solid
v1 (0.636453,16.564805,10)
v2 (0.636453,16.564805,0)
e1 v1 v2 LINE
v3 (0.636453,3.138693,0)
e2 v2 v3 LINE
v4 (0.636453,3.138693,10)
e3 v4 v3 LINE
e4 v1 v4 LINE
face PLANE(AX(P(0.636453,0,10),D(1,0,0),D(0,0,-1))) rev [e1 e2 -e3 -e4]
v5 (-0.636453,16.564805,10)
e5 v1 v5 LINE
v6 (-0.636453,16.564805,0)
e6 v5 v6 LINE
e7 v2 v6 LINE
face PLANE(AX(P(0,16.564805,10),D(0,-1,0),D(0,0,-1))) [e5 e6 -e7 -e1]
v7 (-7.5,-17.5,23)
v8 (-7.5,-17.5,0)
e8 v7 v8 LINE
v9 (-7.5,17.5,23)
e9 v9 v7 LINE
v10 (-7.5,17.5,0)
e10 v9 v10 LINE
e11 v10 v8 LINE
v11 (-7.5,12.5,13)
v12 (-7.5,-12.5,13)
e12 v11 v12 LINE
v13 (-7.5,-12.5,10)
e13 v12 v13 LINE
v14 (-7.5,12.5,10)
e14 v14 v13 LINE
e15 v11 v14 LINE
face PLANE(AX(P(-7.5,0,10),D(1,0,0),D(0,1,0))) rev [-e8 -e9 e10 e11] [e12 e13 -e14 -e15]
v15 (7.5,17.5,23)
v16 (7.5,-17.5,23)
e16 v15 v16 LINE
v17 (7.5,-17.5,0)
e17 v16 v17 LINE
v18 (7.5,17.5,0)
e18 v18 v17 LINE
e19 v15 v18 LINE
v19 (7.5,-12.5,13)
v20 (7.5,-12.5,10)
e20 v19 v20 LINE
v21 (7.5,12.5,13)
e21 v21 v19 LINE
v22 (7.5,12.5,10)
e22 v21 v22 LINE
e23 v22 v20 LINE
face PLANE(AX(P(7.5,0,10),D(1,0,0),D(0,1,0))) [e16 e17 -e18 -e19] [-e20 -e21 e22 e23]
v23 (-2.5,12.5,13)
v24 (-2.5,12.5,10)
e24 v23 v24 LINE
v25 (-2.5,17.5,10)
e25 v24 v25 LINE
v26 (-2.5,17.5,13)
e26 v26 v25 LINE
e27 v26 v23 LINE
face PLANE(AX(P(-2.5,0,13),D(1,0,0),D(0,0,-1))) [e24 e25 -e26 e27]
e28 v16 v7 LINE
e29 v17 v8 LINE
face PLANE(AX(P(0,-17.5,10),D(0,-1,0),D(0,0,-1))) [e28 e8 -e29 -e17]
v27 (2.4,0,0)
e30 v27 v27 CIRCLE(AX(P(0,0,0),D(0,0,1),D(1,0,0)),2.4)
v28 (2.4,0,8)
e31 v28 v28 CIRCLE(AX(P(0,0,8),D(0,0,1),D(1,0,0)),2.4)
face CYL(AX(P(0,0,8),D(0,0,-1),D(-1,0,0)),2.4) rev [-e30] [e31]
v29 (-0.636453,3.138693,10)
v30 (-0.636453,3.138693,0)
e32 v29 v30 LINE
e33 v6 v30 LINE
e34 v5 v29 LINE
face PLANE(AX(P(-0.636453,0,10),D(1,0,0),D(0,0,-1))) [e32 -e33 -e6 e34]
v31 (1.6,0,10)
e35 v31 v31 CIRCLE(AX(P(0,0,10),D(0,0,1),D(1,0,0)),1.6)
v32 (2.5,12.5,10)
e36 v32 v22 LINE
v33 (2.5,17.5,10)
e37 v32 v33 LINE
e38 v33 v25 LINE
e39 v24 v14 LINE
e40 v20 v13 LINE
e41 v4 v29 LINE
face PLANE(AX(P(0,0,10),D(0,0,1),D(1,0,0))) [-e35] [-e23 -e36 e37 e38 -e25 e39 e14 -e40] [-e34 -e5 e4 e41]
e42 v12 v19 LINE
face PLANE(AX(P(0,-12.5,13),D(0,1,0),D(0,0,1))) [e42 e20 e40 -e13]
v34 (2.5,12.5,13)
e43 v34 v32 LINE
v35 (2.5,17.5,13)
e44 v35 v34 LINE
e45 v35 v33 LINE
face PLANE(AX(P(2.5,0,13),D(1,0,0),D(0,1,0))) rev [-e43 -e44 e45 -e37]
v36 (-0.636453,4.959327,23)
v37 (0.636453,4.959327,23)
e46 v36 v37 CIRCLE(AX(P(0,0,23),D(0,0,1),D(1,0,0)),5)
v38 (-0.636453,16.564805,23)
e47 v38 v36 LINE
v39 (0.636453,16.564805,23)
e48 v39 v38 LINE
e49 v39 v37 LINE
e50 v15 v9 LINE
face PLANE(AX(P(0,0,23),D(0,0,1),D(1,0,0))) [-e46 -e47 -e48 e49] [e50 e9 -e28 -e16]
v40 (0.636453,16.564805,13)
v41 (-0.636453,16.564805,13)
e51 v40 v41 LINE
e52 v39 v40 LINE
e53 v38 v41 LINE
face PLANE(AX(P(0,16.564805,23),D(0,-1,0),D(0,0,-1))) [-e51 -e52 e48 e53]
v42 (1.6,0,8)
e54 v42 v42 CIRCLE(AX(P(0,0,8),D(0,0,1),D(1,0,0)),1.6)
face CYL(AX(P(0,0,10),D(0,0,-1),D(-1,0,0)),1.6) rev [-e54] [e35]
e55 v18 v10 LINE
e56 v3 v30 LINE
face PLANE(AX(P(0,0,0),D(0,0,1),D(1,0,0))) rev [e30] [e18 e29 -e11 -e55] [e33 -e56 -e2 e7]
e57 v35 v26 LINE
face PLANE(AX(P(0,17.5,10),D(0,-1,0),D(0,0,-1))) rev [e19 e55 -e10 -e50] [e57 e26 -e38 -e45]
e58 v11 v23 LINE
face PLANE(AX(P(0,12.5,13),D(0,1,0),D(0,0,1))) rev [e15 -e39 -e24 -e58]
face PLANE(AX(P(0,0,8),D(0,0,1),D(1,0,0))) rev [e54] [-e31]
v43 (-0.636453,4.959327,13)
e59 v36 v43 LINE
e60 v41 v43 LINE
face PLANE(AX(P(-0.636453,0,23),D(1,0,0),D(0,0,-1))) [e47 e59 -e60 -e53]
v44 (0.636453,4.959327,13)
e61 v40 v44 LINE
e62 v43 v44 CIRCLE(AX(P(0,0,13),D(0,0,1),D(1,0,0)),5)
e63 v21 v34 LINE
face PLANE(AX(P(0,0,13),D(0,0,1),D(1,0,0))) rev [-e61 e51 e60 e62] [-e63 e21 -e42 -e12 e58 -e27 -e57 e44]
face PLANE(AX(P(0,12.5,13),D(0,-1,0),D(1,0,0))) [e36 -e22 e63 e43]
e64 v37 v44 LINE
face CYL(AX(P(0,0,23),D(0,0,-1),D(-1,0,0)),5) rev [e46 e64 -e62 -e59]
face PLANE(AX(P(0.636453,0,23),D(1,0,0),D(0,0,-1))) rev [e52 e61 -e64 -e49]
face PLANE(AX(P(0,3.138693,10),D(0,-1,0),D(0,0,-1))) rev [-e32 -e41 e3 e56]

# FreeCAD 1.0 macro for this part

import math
import FreeCAD as App
import Part
import Sketcher
from FreeCAD import Vector


def add_polygon(sketch, points):
    """Adds a closed chain of lines whose ends are joined by coincident constraints."""
    first, n = sketch.GeometryCount, len(points)
    for a, b in zip(points, points[1:] + points[:1]):
        sketch.addGeometry(Part.LineSegment(App.Vector(*a, 0), App.Vector(*b, 0)), False)
    for i in range(n):
        sketch.addConstraint(Sketcher.Constraint("Coincident", first + i, 2, first + (i + 1) % n, 1))

doc = App.newDocument("Part")
body = doc.addObject("PartDesign::Body", "Body")

# Sketch on XY plane
sketch1 = body.newObject("Sketcher::SketchObject", "Sketch")
sketch1.AttachmentSupport = (doc.getObject("XY_Plane"), [""])
sketch1.MapMode = "FlatFace"
add_polygon(sketch1, [(-7.5, 17.5), (-7.5, -17.5), (7.5, -17.5), (7.5, 17.5)])  # lines 0-3
sketch1.addGeometry(Part.Circle(Vector(0, 0, 0), Vector(0, 0, 1), 1.6), False)  # 4
add_polygon(sketch1, [(0.6, 3.1), (-0.6, 3.1), (-0.6, 16.6), (0.6, 16.6)])  # lines 5-8
sketch1.addConstraint(Sketcher.Constraint("Vertical", 0))
sketch1.addConstraint(Sketcher.Constraint("Horizontal", 1))
sketch1.addConstraint(Sketcher.Constraint("Vertical", 2))
sketch1.addConstraint(Sketcher.Constraint("Horizontal", 3))
sketch1.addConstraint(Sketcher.Constraint("Horizontal", 5))
sketch1.addConstraint(Sketcher.Constraint("Vertical", 6))
sketch1.addConstraint(Sketcher.Constraint("Horizontal", 7))
sketch1.addConstraint(Sketcher.Constraint("Vertical", 8))
sketch1.addConstraint(Sketcher.Constraint("Coincident", 4, 3, -1, 1))
sketch1.addConstraint(Sketcher.Constraint("Symmetric", 0, 2, 2, 2, -1, 1))
sketch1.addConstraint(Sketcher.Constraint("Diameter", 4, 3.2))
sketch1.addConstraint(Sketcher.Constraint("DistanceX", 1, 1, 1, 2, 15.0))
sketch1.addConstraint(Sketcher.Constraint("DistanceY", 0, 2, 0, 1, 35.0))
sketch1.addConstraint(Sketcher.Constraint("DistanceX", 5, 2, 5, 1, 1.272906))
sketch1.addConstraint(Sketcher.Constraint("DistanceY", 6, 1, 6, 2, 13.426113))
sketch1.addConstraint(Sketcher.Constraint("DistanceX", 5, 2, -1, 1, 0.636453))
sketch1.addConstraint(Sketcher.Constraint("DistanceY", -1, 1, 5, 2, 3.138693))
pad1 = body.newObject("PartDesign::Pad", "Pad")
pad1.Profile = sketch1
pad1.Length = 10

# Sketch on XY plane
sketch2 = body.newObject("Sketcher::SketchObject", "Sketch001")
sketch2.AttachmentSupport = (doc.getObject("XY_Plane"), [""])
sketch2.MapMode = "FlatFace"
sketch2.addGeometry(Part.Circle(Vector(0, 0, 0), Vector(0, 0, 1), 2.4), False)
sketch2.addGeometry(Part.Circle(Vector(0, 0, 0), Vector(0, 0, 1), 1.6), False)
sketch2.addConstraint(Sketcher.Constraint("Coincident", 0, 3, -1, 1))
sketch2.addConstraint(Sketcher.Constraint("Coincident", 1, 3, -1, 1))
sketch2.addConstraint(Sketcher.Constraint("Diameter", 0, 4.8))
sketch2.addConstraint(Sketcher.Constraint("Diameter", 1, 3.2))
pocket1 = body.newObject("PartDesign::Pocket", "Pocket")
pocket1.Profile = sketch2
pocket1.Length = 8
pocket1.Reversed = True

# Sketch on XY plane
sketch3 = body.newObject("Sketcher::SketchObject", "Sketch002")
sketch3.AttachmentSupport = (doc.getObject("XY_Plane"), [""])
sketch3.MapMode = "FlatFace"
add_polygon(sketch3, [(-8, -12), (-8, -18), (8, -18), (8, -12)])  # lines 0-3
add_polygon(sketch3, [(-8, 18), (-8, 12), (-2, 12), (-2, 18)])  # lines 4-7
add_polygon(sketch3, [(2, 18), (2, 12), (8, 12), (8, 18)])  # lines 8-11
sketch3.addConstraint(Sketcher.Constraint("Vertical", 0))
sketch3.addConstraint(Sketcher.Constraint("Horizontal", 1))
sketch3.addConstraint(Sketcher.Constraint("Vertical", 2))
sketch3.addConstraint(Sketcher.Constraint("Horizontal", 3))
sketch3.addConstraint(Sketcher.Constraint("Vertical", 4))
sketch3.addConstraint(Sketcher.Constraint("Horizontal", 5))
sketch3.addConstraint(Sketcher.Constraint("Vertical", 6))
sketch3.addConstraint(Sketcher.Constraint("Horizontal", 7))
sketch3.addConstraint(Sketcher.Constraint("Vertical", 8))
sketch3.addConstraint(Sketcher.Constraint("Horizontal", 9))
sketch3.addConstraint(Sketcher.Constraint("Vertical", 10))
sketch3.addConstraint(Sketcher.Constraint("Horizontal", 11))
sketch3.addConstraint(Sketcher.Constraint("Symmetric", 2, 2, 4, 2, -1, 1))
sketch3.addConstraint(Sketcher.Constraint("Symmetric", 3, 2, 9, 2, -1, 1))
sketch3.addConstraint(Sketcher.Constraint("Symmetric", 7, 2, 10, 2, -2))
sketch3.addConstraint(Sketcher.Constraint("Equal", 7, 9))
sketch3.addConstraint(Sketcher.Constraint("Equal", 11, 0))
sketch3.addConstraint(Sketcher.Constraint("Equal", 2, 4))
sketch3.addConstraint(Sketcher.Constraint("DistanceX", 1, 1, 1, 2, 15.0))
sketch3.addConstraint(Sketcher.Constraint("DistanceX", 5, 1, 5, 2, 5.0))
sketch3.addConstraint(Sketcher.Constraint("DistanceY", 3, 2, 4, 2, 25.0))
pad2 = body.newObject("PartDesign::Pad", "Pad001")
pad2.Profile = sketch3
pad2.Length = 13

# Sketch on XY plane
sketch4 = body.newObject("Sketcher::SketchObject", "Sketch003")
sketch4.AttachmentSupport = (doc.getObject("XY_Plane"), [""])
sketch4.MapMode = "FlatFace"
sketch4.AttachmentOffset = App.Placement(Vector(0, 0, 13), App.Rotation())
add_polygon(sketch4, [(-7.5, -17.5), (7.5, -17.5), (7.5, 17.5), (-7.5, 17.5)])  # lines 0-3
sketch4.addGeometry(Part.LineSegment(Vector(-0.6, 5, 0), Vector(-0.6, 16.6, 0)), False)  # 4
sketch4.addGeometry(Part.LineSegment(Vector(-0.6, 16.6, 0), Vector(0.6, 16.6, 0)), False)  # 5
sketch4.addGeometry(Part.LineSegment(Vector(0.6, 16.6, 0), Vector(0.6, 5, 0)), False)  # 6
sketch4.addGeometry(Part.ArcOfCircle(Part.Circle(Vector(0, 0, 0), Vector(0, 0, 1), 5), math.radians(97), math.radians(443)), False)  # 7
sketch4.addConstraint(Sketcher.Constraint("Coincident", 4, 2, 5, 1))
sketch4.addConstraint(Sketcher.Constraint("Coincident", 5, 2, 6, 1))
sketch4.addConstraint(Sketcher.Constraint("Coincident", 6, 2, 7, 2))
sketch4.addConstraint(Sketcher.Constraint("Coincident", 7, 1, 4, 1))
sketch4.addConstraint(Sketcher.Constraint("Horizontal", 0))
sketch4.addConstraint(Sketcher.Constraint("Vertical", 1))
sketch4.addConstraint(Sketcher.Constraint("Horizontal", 2))
sketch4.addConstraint(Sketcher.Constraint("Vertical", 3))
sketch4.addConstraint(Sketcher.Constraint("Vertical", 4))
sketch4.addConstraint(Sketcher.Constraint("Horizontal", 5))
sketch4.addConstraint(Sketcher.Constraint("Vertical", 6))
sketch4.addConstraint(Sketcher.Constraint("Coincident", 7, 3, -1, 1))
sketch4.addConstraint(Sketcher.Constraint("Symmetric", 0, 2, 2, 2, -1, 1))
sketch4.addConstraint(Sketcher.Constraint("Horizontal", 6, 2, 7, 1))
sketch4.addConstraint(Sketcher.Constraint("Radius", 7, 5.0))
sketch4.addConstraint(Sketcher.Constraint("DistanceX", 0, 1, 0, 2, 15.0))
sketch4.addConstraint(Sketcher.Constraint("DistanceY", 1, 1, 1, 2, 35.0))
sketch4.addConstraint(Sketcher.Constraint("DistanceY", 4, 1, 4, 2, 11.605478))
sketch4.addConstraint(Sketcher.Constraint("DistanceX", 5, 1, 5, 2, 1.272906))
pad3 = body.newObject("PartDesign::Pad", "Pad002")
pad3.Profile = sketch4
pad3.Length = 10

doc.recompute()
